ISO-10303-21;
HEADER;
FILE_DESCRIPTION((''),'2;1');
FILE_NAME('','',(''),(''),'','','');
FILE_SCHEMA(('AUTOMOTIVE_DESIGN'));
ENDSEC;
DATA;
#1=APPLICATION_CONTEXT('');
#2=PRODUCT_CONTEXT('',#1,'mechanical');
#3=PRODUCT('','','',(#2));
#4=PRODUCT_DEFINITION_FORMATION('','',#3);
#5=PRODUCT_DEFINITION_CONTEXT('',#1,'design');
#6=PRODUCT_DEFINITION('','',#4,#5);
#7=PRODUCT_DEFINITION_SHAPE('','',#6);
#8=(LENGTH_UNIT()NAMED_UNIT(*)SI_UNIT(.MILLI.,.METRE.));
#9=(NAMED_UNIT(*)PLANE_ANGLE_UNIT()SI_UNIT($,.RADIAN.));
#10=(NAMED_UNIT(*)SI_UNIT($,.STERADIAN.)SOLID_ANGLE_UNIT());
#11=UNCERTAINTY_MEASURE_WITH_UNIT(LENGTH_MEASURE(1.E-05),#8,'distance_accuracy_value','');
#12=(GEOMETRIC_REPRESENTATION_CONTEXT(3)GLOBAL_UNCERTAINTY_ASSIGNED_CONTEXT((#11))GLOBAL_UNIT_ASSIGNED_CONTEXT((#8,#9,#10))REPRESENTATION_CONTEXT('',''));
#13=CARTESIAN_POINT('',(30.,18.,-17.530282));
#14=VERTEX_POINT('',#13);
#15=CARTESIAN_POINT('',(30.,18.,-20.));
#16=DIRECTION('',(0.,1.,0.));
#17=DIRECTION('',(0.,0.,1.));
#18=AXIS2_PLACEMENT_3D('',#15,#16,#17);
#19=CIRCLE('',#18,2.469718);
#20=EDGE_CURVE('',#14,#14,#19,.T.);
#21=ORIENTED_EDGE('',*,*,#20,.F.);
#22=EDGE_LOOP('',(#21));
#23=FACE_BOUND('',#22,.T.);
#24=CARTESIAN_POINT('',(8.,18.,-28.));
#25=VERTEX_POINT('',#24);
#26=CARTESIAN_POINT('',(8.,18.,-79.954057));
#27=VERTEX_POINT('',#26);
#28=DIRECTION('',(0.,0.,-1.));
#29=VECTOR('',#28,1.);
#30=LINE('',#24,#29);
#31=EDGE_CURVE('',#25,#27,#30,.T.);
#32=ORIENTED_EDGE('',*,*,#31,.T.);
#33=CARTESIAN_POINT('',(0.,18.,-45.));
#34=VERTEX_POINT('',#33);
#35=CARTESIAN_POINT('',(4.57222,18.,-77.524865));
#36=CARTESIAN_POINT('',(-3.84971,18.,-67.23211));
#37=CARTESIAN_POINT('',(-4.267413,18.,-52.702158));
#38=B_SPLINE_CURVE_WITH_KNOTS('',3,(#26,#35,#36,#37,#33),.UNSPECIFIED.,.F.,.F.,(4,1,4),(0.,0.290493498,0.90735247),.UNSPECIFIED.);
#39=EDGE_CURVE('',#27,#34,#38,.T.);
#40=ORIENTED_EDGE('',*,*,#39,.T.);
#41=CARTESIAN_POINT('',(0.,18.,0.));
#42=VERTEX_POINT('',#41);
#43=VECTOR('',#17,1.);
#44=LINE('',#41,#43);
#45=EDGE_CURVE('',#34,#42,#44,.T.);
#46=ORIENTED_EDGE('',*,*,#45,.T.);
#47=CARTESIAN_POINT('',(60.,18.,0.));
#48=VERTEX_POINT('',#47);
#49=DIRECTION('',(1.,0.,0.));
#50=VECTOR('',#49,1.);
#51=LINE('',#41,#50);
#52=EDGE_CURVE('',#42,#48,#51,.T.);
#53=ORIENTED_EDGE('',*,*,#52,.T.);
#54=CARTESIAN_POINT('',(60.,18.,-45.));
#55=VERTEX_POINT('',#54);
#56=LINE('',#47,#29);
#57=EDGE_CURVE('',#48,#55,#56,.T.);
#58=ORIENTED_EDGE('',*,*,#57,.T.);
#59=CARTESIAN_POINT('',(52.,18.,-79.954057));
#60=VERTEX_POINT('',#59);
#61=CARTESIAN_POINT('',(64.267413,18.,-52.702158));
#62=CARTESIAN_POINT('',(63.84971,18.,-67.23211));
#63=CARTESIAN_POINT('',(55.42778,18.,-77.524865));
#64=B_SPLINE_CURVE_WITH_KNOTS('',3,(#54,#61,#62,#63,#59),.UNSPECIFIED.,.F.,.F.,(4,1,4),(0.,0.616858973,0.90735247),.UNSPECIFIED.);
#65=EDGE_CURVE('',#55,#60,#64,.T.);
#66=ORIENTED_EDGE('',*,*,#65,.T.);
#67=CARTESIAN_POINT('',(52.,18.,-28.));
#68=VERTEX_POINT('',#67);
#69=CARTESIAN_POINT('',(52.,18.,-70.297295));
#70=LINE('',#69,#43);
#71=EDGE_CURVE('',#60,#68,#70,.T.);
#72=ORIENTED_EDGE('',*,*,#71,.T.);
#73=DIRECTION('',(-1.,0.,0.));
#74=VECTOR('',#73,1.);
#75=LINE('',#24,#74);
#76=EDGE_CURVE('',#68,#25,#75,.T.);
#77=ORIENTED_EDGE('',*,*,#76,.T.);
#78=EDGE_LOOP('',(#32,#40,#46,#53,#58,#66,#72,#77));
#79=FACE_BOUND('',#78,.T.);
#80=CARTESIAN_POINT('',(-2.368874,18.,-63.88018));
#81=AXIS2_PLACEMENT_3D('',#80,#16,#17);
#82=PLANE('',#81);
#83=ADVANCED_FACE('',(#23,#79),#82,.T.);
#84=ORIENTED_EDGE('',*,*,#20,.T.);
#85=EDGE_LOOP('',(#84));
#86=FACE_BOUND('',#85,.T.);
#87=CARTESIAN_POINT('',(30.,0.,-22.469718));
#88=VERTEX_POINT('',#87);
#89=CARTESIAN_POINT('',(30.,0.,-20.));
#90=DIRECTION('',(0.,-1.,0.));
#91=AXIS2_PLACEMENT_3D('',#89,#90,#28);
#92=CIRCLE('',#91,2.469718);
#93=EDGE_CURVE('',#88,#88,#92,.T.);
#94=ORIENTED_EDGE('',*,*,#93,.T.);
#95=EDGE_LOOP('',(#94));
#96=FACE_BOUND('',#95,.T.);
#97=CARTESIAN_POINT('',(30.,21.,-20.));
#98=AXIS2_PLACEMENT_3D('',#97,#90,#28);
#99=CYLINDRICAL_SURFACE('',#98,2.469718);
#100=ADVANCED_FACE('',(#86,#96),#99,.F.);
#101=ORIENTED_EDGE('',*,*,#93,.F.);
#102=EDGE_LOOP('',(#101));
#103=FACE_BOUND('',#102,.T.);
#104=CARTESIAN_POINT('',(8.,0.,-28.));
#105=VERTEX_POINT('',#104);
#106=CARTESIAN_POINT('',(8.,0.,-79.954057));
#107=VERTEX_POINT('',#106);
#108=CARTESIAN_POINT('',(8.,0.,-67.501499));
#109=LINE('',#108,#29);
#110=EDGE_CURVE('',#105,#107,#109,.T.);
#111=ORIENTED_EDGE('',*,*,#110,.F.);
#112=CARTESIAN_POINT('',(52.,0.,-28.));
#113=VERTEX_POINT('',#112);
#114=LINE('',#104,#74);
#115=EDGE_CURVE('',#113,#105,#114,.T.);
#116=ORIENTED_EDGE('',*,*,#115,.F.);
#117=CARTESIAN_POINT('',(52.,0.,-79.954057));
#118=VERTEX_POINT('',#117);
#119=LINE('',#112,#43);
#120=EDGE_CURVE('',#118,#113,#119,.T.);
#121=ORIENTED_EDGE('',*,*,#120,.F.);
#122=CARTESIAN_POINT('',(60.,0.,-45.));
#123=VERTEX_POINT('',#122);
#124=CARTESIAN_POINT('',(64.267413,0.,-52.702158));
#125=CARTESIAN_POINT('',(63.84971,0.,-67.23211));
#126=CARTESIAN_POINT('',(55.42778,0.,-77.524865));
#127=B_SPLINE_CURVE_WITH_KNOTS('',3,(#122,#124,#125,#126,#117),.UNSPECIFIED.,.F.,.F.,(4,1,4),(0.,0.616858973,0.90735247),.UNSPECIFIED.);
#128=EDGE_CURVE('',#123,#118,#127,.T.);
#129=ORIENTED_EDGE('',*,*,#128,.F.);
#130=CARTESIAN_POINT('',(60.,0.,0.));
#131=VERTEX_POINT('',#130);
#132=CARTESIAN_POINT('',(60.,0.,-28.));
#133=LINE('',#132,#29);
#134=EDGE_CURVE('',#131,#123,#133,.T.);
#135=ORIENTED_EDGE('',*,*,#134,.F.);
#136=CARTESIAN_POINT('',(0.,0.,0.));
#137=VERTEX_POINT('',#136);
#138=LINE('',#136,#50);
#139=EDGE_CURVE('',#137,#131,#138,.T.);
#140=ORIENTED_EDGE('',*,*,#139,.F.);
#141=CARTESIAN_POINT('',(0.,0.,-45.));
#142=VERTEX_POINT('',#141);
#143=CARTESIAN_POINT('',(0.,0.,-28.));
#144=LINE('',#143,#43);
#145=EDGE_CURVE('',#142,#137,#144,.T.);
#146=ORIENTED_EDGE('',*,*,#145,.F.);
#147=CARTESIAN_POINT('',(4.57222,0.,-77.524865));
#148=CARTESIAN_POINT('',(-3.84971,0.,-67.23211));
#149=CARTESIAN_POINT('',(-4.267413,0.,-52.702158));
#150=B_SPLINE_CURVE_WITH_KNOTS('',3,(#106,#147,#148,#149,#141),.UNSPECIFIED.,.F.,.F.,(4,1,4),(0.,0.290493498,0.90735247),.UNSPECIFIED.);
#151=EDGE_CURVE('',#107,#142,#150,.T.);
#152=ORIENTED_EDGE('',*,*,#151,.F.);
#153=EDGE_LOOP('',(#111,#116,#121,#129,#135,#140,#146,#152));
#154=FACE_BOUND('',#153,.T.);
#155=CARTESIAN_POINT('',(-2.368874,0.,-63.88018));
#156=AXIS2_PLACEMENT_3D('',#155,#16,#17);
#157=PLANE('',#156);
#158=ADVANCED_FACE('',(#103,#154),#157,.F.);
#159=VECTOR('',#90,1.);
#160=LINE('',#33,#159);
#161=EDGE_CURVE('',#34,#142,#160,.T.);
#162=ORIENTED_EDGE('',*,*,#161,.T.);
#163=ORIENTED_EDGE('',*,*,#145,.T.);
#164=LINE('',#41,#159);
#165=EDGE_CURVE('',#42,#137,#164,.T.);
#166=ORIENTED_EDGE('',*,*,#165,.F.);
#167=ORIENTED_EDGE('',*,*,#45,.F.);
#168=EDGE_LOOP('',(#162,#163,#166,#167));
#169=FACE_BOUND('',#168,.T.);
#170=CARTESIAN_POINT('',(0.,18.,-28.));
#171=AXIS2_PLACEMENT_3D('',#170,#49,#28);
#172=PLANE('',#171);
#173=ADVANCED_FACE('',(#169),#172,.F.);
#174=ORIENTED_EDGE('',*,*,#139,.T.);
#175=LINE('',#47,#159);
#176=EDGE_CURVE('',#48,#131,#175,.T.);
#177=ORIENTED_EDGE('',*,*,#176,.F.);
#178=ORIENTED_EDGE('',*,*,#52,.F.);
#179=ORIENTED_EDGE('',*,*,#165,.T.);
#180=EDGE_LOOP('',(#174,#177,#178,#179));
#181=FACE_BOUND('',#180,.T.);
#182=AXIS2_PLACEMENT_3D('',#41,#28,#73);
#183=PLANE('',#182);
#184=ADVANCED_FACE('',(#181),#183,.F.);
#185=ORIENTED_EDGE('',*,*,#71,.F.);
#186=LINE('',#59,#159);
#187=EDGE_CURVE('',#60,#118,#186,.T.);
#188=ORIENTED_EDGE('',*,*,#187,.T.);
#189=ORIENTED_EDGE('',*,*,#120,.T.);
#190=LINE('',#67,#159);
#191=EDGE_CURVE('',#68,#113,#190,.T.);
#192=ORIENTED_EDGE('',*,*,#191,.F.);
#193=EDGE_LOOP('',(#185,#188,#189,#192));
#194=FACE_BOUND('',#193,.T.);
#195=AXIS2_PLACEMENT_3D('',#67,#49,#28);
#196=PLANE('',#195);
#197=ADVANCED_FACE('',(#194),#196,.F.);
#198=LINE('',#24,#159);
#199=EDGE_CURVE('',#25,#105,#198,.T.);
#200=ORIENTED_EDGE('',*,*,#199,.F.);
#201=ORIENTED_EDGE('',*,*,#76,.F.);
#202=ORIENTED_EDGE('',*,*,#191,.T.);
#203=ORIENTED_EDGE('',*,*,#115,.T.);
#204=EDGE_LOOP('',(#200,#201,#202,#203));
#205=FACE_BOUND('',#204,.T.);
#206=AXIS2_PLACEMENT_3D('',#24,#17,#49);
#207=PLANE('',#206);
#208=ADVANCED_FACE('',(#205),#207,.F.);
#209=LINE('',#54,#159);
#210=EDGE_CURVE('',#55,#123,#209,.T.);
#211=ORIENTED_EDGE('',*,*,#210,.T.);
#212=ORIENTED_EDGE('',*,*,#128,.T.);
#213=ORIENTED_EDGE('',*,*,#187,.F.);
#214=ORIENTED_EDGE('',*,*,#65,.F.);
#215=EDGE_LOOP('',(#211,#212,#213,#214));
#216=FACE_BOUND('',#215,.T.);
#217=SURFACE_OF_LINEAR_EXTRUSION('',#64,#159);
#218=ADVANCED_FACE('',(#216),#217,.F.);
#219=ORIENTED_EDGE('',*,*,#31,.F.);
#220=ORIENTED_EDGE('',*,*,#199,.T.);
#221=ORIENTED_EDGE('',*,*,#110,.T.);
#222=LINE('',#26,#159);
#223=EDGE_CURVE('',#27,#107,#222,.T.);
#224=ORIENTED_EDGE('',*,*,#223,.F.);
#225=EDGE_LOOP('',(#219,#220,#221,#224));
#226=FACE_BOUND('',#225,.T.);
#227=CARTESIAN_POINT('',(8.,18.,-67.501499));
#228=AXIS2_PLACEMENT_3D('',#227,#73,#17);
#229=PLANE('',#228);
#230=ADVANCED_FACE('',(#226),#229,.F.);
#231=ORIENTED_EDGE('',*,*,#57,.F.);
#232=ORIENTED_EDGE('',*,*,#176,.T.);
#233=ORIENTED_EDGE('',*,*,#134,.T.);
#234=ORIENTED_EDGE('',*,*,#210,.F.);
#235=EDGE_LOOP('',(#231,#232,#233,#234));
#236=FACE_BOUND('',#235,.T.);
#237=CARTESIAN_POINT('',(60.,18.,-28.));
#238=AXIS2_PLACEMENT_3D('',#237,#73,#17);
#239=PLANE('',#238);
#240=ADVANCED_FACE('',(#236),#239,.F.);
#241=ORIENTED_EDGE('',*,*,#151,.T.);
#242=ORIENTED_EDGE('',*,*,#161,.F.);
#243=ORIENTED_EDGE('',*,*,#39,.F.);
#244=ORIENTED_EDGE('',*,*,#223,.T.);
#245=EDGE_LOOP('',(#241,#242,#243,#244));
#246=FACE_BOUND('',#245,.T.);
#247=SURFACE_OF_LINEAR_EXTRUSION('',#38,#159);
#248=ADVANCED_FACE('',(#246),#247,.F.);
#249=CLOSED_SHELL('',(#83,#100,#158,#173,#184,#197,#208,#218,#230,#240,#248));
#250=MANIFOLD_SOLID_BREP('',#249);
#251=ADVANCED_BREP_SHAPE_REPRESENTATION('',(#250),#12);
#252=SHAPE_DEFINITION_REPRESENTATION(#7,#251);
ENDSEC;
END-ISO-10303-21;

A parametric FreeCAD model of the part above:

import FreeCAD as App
import Part
import Sketcher
from FreeCAD import Vector
Q = App.Units.Quantity

doc = App.newDocument("Part")
params = doc.addObject("Spreadsheet::Sheet", "Params")
for row, (alias, value) in enumerate([
    ("pad1_length", "18 mm"),
    ("pocket1_length", "21 mm"),
], start=1):
    params.set(f"A{row}", alias)
    params.set(f"B{row}", "=" + value)
    params.setAlias(f"B{row}", alias)

body = doc.addObject("PartDesign::Body", "Body")

sketch1 = doc.addObject("Sketcher::SketchObject", "Sketch")
body.addObject(sketch1)
sketch1.AttachmentSupport = (doc.XZ_Plane, [""])
sketch1.MapMode = "FlatFace"
sketch1.addGeometry([
    Part.BSplineCurve([Vector(0, -45, 0), Vector(-4.267413, -52.702158, 0), Vector(-3.84971, -67.23211, 0), Vector(4.57222, -77.524865, 0), Vector(8, -79.954057, 0)], [4, 1, 4], [0, 0.616858973, 0.90735247], False, 3, [1, 1, 1, 1, 1], False),
    Part.LineSegment(Vector(0, -45, 0), Vector(0, 0, 0)),
    Part.LineSegment(Vector(0, 0, 0), Vector(60, 0, 0)),
    Part.LineSegment(Vector(60, 0, 0), Vector(60, -45, 0)),
    Part.BSplineCurve([Vector(60, -45, 0), Vector(64.267413, -52.702158, 0), Vector(63.84971, -67.23211, 0), Vector(55.42778, -77.524865, 0), Vector(52, -79.954057, 0)], [4, 1, 4], [0, 0.616858973, 0.90735247], False, 3, [1, 1, 1, 1, 1], False),
    Part.LineSegment(Vector(52, -79.954057, 0), Vector(52, -28, 0)),
    Part.LineSegment(Vector(52, -28, 0), Vector(8, -28, 0)),
    Part.LineSegment(Vector(8, -28, 0), Vector(8, -79.954057, 0)),
], False)
sketch1.addConstraint([
    Sketcher.Constraint("Block", 0),
    Sketcher.Constraint("Block", 4),
    Sketcher.Constraint("Coincident", 0, 1, 1, 1),
    Sketcher.Constraint("Coincident", 1, 2, 2, 1),
    Sketcher.Constraint("Coincident", 2, 2, 3, 1),
    Sketcher.Constraint("Coincident", 3, 2, 4, 1),
    Sketcher.Constraint("Coincident", 4, 2, 5, 1),
    Sketcher.Constraint("Coincident", 5, 2, 6, 1),
    Sketcher.Constraint("Coincident", 6, 2, 7, 1),
    Sketcher.Constraint("Coincident", 7, 2, 0, 2),
    Sketcher.Constraint("Vertical", 1),
    Sketcher.Constraint("Horizontal", 2),
    Sketcher.Constraint("Vertical", 3),
    Sketcher.Constraint("Vertical", 5),
    Sketcher.Constraint("Horizontal", 6),
    Sketcher.Constraint("Vertical", 7),
    Sketcher.Constraint("PointOnObject", 2, 2, -1),
    Sketcher.Constraint("DistanceY", 5, 2, -1, 1, Q("28 mm")),
])
pad1 = doc.addObject("PartDesign::Pad", "Pad")
body.addObject(pad1)
pad1.Profile = sketch1
pad1.setExpression("Length", "Params.pad1_length")
pad1.Reversed = True

sketch2 = doc.addObject("Sketcher::SketchObject", "Sketch001")
body.addObject(sketch2)
sketch2.AttachmentSupport = (doc.XZ_Plane, [""])
sketch2.MapMode = "FlatFace"
sketch2.addGeometry(Part.Circle(Vector(30, -20, 0), Vector(0, 0, 1), 2.5), False)
sketch2.addConstraint([
    Sketcher.Constraint("DistanceX", -1, 1, 0, 3, Q("30 mm")),
    Sketcher.Constraint("DistanceY", 0, 3, -1, 1, Q("20 mm")),
    Sketcher.Constraint("Diameter", 0, Q("4.939436 mm")),
])
pocket1 = doc.addObject("PartDesign::Pocket", "Pocket")
body.addObject(pocket1)
pocket1.Profile = sketch2
pocket1.setExpression("Length", "Params.pocket1_length")

doc.recompute()
